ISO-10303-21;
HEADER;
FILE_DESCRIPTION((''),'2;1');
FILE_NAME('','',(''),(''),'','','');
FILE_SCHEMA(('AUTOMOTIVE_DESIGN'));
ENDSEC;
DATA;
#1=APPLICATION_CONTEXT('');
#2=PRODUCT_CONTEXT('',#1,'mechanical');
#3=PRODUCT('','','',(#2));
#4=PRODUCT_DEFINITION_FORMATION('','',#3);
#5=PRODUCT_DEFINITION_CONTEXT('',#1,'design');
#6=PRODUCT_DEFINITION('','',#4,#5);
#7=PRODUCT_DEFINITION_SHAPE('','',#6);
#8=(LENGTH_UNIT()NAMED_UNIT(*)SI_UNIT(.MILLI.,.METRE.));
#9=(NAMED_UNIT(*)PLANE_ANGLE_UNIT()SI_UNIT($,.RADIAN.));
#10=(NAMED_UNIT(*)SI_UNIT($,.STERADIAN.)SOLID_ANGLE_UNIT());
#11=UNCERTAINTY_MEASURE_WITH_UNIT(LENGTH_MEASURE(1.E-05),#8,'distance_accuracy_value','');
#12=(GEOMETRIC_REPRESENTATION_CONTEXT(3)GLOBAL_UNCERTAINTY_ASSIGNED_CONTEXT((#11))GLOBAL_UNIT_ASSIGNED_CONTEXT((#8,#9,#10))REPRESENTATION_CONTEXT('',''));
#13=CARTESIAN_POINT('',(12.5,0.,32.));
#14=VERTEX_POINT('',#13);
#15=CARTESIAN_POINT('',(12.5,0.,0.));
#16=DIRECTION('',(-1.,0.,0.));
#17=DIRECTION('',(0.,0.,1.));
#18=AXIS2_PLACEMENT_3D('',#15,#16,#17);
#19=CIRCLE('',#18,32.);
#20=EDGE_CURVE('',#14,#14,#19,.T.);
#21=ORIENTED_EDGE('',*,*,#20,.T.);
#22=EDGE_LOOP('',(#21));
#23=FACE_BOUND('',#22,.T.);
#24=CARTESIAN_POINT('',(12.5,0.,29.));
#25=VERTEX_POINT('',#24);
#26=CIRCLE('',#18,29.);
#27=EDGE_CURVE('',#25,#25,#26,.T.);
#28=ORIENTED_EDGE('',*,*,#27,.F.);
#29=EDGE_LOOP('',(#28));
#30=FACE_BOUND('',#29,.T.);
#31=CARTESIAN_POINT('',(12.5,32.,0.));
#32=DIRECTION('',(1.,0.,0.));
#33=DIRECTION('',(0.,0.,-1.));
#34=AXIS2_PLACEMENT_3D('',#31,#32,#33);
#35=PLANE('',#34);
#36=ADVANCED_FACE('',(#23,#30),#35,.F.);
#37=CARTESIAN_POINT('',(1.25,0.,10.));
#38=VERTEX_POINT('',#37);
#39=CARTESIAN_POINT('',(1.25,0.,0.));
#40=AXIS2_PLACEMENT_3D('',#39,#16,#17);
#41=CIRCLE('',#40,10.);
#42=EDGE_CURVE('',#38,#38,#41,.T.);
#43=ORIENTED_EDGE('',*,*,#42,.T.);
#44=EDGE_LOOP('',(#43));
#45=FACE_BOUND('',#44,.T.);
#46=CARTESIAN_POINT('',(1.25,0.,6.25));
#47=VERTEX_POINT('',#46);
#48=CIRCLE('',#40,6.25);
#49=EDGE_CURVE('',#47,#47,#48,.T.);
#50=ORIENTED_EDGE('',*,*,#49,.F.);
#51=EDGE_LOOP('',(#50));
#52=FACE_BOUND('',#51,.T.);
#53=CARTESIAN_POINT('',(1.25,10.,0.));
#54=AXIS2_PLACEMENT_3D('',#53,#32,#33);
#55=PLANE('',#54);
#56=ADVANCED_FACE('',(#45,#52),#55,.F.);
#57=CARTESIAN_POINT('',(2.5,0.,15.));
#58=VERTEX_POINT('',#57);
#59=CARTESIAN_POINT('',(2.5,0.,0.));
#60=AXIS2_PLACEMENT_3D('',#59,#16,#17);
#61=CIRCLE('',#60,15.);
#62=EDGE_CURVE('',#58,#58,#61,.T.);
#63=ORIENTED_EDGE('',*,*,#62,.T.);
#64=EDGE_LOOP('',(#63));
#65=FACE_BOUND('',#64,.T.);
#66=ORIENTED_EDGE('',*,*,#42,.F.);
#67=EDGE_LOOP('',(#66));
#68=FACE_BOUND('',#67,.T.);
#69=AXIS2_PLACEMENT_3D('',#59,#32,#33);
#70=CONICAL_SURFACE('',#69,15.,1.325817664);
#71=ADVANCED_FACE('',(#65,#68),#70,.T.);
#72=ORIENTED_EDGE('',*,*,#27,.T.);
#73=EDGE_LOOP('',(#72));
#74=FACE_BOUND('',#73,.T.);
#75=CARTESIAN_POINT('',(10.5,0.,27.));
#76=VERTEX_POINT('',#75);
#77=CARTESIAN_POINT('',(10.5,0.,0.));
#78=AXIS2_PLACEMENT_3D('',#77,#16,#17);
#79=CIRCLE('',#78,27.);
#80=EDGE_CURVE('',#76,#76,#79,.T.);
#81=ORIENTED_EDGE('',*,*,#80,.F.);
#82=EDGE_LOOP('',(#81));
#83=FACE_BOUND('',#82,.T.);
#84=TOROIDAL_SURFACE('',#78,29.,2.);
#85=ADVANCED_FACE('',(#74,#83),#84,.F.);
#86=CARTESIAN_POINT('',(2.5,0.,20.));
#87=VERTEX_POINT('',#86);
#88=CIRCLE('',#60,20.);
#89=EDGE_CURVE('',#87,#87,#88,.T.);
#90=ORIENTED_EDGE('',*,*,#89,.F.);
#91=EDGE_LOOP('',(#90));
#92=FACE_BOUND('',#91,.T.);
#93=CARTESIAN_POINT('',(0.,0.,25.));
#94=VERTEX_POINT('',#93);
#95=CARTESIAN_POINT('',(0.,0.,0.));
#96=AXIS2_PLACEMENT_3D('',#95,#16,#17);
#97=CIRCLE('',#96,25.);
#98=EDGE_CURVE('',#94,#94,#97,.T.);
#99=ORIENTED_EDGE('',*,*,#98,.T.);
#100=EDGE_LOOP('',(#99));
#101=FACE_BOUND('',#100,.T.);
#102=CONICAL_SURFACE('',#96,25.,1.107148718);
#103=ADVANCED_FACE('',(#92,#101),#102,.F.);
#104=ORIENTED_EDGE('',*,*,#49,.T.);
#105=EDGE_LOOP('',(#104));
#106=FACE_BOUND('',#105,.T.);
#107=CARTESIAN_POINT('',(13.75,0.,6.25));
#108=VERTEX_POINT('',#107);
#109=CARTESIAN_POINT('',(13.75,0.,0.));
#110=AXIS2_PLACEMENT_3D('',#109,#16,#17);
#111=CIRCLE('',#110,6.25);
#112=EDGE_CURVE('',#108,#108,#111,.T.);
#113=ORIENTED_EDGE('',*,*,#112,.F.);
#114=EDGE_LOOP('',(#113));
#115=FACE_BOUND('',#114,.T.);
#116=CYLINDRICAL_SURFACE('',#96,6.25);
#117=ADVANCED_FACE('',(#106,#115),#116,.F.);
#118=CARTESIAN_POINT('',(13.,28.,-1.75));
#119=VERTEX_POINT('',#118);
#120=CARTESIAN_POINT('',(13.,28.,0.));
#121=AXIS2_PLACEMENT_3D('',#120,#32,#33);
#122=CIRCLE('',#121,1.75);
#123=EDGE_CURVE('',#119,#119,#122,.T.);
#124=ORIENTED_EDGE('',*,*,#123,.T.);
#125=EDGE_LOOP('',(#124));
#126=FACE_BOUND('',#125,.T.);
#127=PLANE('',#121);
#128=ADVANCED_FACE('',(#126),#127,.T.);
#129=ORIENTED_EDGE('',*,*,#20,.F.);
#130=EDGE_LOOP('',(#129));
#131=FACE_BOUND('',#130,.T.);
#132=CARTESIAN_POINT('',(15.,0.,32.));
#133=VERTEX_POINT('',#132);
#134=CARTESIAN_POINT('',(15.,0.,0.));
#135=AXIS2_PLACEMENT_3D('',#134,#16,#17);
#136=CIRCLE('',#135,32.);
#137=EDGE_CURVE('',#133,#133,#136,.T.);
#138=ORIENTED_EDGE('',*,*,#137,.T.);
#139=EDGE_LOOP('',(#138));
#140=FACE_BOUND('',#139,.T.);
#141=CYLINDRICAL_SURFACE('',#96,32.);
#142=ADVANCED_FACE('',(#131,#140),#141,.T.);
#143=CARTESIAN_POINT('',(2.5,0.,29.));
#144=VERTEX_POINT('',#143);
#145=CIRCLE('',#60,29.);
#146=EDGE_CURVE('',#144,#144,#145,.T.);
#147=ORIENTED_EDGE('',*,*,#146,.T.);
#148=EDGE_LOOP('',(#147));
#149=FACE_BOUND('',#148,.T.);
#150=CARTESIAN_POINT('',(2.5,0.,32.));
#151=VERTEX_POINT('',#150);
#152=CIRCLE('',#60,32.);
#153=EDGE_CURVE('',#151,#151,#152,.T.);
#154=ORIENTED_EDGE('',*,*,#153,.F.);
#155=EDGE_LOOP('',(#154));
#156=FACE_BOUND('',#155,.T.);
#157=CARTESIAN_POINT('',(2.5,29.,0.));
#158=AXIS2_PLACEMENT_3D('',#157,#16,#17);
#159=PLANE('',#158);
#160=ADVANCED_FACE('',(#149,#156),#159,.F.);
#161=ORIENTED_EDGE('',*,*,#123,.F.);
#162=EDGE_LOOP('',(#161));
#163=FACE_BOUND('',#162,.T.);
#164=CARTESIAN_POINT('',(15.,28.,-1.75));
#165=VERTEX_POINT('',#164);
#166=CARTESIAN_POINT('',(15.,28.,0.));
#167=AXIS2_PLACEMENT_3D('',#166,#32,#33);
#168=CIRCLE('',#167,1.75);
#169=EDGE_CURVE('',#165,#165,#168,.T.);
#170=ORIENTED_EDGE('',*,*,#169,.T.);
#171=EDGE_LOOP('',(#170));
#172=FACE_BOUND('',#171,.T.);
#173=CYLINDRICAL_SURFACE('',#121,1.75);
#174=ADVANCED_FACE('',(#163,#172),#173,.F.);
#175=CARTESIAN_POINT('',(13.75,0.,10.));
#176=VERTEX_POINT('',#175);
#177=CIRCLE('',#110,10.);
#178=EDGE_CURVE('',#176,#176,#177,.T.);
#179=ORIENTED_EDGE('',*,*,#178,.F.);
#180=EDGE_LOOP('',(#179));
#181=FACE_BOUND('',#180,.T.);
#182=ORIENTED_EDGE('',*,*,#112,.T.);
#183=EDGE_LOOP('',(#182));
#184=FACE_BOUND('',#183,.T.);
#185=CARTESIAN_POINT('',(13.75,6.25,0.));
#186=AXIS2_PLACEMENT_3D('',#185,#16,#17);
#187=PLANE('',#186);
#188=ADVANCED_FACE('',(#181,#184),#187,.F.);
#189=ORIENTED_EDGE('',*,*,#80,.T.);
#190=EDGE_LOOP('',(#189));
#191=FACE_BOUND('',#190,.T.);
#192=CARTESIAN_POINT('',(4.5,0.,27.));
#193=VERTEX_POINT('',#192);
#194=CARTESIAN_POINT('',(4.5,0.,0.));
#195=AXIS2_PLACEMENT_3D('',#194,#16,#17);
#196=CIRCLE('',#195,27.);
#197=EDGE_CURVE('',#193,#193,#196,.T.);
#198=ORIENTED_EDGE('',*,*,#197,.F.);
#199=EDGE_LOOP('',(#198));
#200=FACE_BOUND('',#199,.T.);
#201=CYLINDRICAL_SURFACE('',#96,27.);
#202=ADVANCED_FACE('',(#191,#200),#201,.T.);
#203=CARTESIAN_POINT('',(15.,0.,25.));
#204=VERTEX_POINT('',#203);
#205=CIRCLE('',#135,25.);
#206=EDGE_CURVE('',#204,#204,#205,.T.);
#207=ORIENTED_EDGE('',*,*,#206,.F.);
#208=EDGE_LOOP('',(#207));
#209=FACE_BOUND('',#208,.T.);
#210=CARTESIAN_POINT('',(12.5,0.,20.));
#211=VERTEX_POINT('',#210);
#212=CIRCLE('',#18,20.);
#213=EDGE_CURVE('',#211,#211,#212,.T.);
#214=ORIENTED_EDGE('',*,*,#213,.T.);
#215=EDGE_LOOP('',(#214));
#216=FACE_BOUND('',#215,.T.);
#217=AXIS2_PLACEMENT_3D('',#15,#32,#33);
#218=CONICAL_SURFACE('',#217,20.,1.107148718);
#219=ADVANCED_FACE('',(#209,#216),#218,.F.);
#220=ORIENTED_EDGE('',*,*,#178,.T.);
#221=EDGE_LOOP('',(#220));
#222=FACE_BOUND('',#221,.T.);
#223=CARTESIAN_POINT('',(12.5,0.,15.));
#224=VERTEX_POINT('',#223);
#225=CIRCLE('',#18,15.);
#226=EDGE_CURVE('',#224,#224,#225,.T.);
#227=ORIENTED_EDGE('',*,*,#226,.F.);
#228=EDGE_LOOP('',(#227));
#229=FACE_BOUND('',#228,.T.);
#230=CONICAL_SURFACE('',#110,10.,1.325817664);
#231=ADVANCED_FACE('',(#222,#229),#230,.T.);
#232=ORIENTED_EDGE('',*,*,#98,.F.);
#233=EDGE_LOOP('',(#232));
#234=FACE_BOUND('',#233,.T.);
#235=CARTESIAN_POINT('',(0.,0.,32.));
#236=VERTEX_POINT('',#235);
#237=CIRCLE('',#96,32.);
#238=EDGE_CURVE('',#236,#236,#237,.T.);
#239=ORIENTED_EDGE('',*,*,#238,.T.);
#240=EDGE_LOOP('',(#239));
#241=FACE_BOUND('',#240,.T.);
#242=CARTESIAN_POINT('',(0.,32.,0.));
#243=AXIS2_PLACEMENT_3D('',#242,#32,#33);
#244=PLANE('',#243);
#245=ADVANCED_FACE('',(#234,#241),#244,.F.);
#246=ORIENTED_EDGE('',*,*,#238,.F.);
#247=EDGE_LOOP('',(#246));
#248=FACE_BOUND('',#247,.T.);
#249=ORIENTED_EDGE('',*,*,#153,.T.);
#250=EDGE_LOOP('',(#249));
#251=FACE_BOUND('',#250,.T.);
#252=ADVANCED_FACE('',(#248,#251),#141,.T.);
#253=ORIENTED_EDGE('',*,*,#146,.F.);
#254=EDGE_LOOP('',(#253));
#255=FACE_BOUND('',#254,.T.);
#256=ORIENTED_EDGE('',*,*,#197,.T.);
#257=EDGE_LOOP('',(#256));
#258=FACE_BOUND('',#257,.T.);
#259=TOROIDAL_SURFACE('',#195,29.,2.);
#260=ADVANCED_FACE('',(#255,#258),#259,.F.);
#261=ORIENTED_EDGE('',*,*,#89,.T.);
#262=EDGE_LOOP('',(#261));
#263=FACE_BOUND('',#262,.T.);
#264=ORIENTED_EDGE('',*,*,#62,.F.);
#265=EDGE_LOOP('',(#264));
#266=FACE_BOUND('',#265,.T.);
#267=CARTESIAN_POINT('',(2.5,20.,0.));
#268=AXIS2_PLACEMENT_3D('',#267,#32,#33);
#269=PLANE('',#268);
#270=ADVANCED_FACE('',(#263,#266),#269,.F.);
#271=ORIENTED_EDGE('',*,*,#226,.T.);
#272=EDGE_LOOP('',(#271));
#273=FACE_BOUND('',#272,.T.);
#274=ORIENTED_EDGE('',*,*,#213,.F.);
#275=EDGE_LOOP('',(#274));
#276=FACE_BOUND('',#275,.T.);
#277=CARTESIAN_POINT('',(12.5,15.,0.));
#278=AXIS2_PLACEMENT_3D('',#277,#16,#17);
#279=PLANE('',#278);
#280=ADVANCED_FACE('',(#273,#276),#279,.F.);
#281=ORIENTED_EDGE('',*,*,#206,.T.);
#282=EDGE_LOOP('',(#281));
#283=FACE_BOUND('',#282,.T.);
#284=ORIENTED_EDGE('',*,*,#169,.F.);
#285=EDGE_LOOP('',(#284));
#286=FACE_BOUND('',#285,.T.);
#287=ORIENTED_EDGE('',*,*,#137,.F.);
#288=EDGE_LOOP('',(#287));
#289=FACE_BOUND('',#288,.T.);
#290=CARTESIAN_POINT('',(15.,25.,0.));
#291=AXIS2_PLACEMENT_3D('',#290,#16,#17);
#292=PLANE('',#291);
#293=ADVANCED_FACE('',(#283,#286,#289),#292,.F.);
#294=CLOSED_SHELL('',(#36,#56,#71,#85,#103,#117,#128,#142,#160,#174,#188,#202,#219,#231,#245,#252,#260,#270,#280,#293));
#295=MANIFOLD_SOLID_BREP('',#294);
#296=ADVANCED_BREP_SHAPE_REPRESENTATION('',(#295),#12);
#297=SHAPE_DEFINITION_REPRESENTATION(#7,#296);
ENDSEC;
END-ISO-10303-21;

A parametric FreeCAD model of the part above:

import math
import FreeCAD as App
import Part
import Sketcher
from FreeCAD import Vector
Q = App.Units.Quantity

doc = App.newDocument("Part")
body = doc.addObject("PartDesign::Body", "Body")

# Sketch on XY plane
sketch1 = body.newObject("Sketcher::SketchObject", "Sketch")
sketch1.AttachmentSupport = (doc.getObject("XY_Plane"), [""])
sketch1.MapMode = "FlatFace"
sketch1.addGeometry(Part.LineSegment(Vector(1.25, 6.25, 0), Vector(13.75, 6.25, 0)), False)
sketch1.addGeometry(Part.LineSegment(Vector(13.75, 6.25, 0), Vector(13.75, 10, 0)), False)
sketch1.addGeometry(Part.LineSegment(Vector(13.75, 10, 0), Vector(12.5, 15, 0)), False)
sketch1.addGeometry(Part.LineSegment(Vector(12.5, 15, 0), Vector(12.5, 20, 0)), False)
sketch1.addGeometry(Part.LineSegment(Vector(12.5, 20, 0), Vector(15, 25, 0)), False)
sketch1.addGeometry(Part.LineSegment(Vector(15, 25, 0), Vector(15, 32, 0)), False)
sketch1.addGeometry(Part.LineSegment(Vector(15, 32, 0), Vector(12.5, 32, 0)), False)
sketch1.addGeometry(Part.LineSegment(Vector(12.5, 32, 0), Vector(12.5, 29, 0)), False)
sketch1.addGeometry(Part.ArcOfCircle(Part.Circle(Vector(10.5, 29, 0), Vector(0, 0, 1), 2), math.radians(-90), math.radians(0)), False)
sketch1.addGeometry(Part.LineSegment(Vector(10.5, 27, 0), Vector(4.5, 27, 0)), False)
sketch1.addGeometry(Part.ArcOfCircle(Part.Circle(Vector(4.5, 29, 0), Vector(0, 0, 1), 2), math.radians(-180), math.radians(-90)), False)
sketch1.addGeometry(Part.LineSegment(Vector(2.5, 29, 0), Vector(2.5, 32, 0)), False)
sketch1.addGeometry(Part.LineSegment(Vector(2.5, 32, 0), Vector(0, 32, 0)), False)
sketch1.addGeometry(Part.LineSegment(Vector(0, 32, 0), Vector(0, 25, 0)), False)
sketch1.addGeometry(Part.LineSegment(Vector(0, 25, 0), Vector(2.5, 20, 0)), False)
sketch1.addGeometry(Part.LineSegment(Vector(2.5, 20, 0), Vector(2.5, 15, 0)), False)
sketch1.addGeometry(Part.LineSegment(Vector(2.5, 15, 0), Vector(1.25, 10, 0)), False)
sketch1.addGeometry(Part.LineSegment(Vector(1.25, 10, 0), Vector(1.25, 6.25, 0)), False)
sketch1.addConstraint(Sketcher.Constraint("Coincident", 0, 2, 1, 1))
sketch1.addConstraint(Sketcher.Constraint("Coincident", 1, 2, 2, 1))
sketch1.addConstraint(Sketcher.Constraint("Coincident", 2, 2, 3, 1))
sketch1.addConstraint(Sketcher.Constraint("Coincident", 3, 2, 4, 1))
sketch1.addConstraint(Sketcher.Constraint("Coincident", 4, 2, 5, 1))
sketch1.addConstraint(Sketcher.Constraint("Coincident", 5, 2, 6, 1))
sketch1.addConstraint(Sketcher.Constraint("Coincident", 6, 2, 7, 1))
sketch1.addConstraint(Sketcher.Constraint("Tangent", 7, 2, 8, 2))
sketch1.addConstraint(Sketcher.Constraint("Tangent", 8, 1, 9, 1))
sketch1.addConstraint(Sketcher.Constraint("Tangent", 9, 2, 10, 2))
sketch1.addConstraint(Sketcher.Constraint("Tangent", 10, 1, 11, 1))
sketch1.addConstraint(Sketcher.Constraint("Coincident", 11, 2, 12, 1))
sketch1.addConstraint(Sketcher.Constraint("Coincident", 12, 2, 13, 1))
sketch1.addConstraint(Sketcher.Constraint("Coincident", 13, 2, 14, 1))
sketch1.addConstraint(Sketcher.Constraint("Coincident", 14, 2, 15, 1))
sketch1.addConstraint(Sketcher.Constraint("Coincident", 15, 2, 16, 1))
sketch1.addConstraint(Sketcher.Constraint("Coincident", 16, 2, 17, 1))
sketch1.addConstraint(Sketcher.Constraint("Coincident", 17, 2, 0, 1))
sketch1.addConstraint(Sketcher.Constraint("Horizontal", 0))
sketch1.addConstraint(Sketcher.Constraint("Vertical", 1))
sketch1.addConstraint(Sketcher.Constraint("Vertical", 3))
sketch1.addConstraint(Sketcher.Constraint("Vertical", 5))
sketch1.addConstraint(Sketcher.Constraint("Horizontal", 6))
sketch1.addConstraint(Sketcher.Constraint("Vertical", 7))
sketch1.addConstraint(Sketcher.Constraint("Horizontal", 9))
sketch1.addConstraint(Sketcher.Constraint("Vertical", 11))
sketch1.addConstraint(Sketcher.Constraint("Horizontal", 12))
sketch1.addConstraint(Sketcher.Constraint("Vertical", 13))
sketch1.addConstraint(Sketcher.Constraint("Vertical", 15))
sketch1.addConstraint(Sketcher.Constraint("Vertical", 17))
sketch1.addConstraint(Sketcher.Constraint("Equal", 8, 10))
sketch1.addConstraint(Sketcher.Constraint("PointOnObject", 12, 2, -2))
sketch1.addConstraint(Sketcher.Constraint("Horizontal", 6, 2, 11, 2))
sketch1.addConstraint(Sketcher.Constraint("Horizontal", 4, 2, 13, 2))
sketch1.addConstraint(Sketcher.Constraint("Horizontal", 3, 2, 14, 2))
sketch1.addConstraint(Sketcher.Constraint("Horizontal", 2, 2, 15, 2))
sketch1.addConstraint(Sketcher.Constraint("Horizontal", 1, 2, 16, 2))
sketch1.addConstraint(Sketcher.Constraint("Vertical", 3, 2, 6, 2))
sketch1.addConstraint(Sketcher.Constraint("Vertical", 11, 2, 14, 2))
sketch1.addConstraint(Sketcher.Constraint("Equal", 6, 12))
sketch1.addConstraint(Sketcher.Constraint("Equal", 2, 16))
sketch1.addConstraint(Sketcher.Constraint("Radius", 8, Q("2 mm")))
sketch1.addConstraint(Sketcher.Constraint("DistanceX", 9, 2, 9, 1, Q("6 mm")))
sketch1.addConstraint(Sketcher.Constraint("DistanceY", 3, 1, 3, 2, Q("5 mm")))
sketch1.addConstraint(Sketcher.Constraint("DistanceY", 5, 1, 5, 2, Q("7 mm")))
sketch1.addConstraint(Sketcher.Constraint("DistanceY", 7, 2, 7, 1, Q("3 mm")))
sketch1.addConstraint(Sketcher.Constraint("DistanceX", 0, 1, 0, 2, Q("12.5 mm")))
sketch1.addConstraint(Sketcher.Constraint("DistanceX", 6, 2, 6, 1, Q("2.5 mm")))
sketch1.addConstraint(Sketcher.Constraint("DistanceY", -1, 1, 8, 3, Q("29 mm")))
sketch1.addConstraint(Sketcher.Constraint("DistanceY", -1, 1, 1, 2, Q("10 mm")))
sketch1.addConstraint(Sketcher.Constraint("DistanceY", -1, 1, 2, 2, Q("15 mm")))
sketch1.addConstraint(Sketcher.Constraint("DistanceY", 1, 1, 1, 2, Q("3.75 mm")))
revolution = body.newObject("PartDesign::Revolution", "Revolution")
revolution.Profile = sketch1
revolution.ReferenceAxis = (sketch1, ["H_Axis"])
revolution.Angle = 360

# Sketch on YZ plane
sketch2 = body.newObject("Sketcher::SketchObject", "Sketch001")
sketch2.AttachmentSupport = (doc.getObject("YZ_Plane"), [""])
sketch2.MapMode = "FlatFace"
sketch2.AttachmentOffset = App.Placement(Vector(0, 0, 15), App.Rotation())
sketch2.addGeometry(Part.Circle(Vector(28, 0, 0), Vector(0, 0, 1), 1.75), False)
sketch2.addConstraint(Sketcher.Constraint("PointOnObject", 0, 3, -1))
sketch2.addConstraint(Sketcher.Constraint("Diameter", 0, Q("3.5 mm")))
sketch2.addConstraint(Sketcher.Constraint("DistanceX", -1, 1, 0, 3, Q("28 mm")))
pocket1 = body.newObject("PartDesign::Pocket", "Pocket")
pocket1.Profile = sketch2
pocket1.Length = 2

doc.recompute()
